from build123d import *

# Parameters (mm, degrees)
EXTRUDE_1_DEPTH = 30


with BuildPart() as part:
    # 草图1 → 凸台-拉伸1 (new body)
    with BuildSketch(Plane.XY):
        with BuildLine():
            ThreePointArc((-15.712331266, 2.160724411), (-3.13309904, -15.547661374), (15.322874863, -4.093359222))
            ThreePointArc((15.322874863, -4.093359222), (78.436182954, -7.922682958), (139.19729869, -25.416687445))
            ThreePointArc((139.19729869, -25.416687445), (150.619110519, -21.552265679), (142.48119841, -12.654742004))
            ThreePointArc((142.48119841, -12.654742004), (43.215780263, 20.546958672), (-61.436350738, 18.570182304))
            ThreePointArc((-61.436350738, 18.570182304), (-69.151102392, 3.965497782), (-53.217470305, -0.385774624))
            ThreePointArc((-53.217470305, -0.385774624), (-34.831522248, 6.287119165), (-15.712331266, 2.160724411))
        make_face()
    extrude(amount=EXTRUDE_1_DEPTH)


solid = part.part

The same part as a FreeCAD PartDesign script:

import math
import FreeCAD as App
import Part
import Sketcher

doc = App.newDocument("Part")
body = doc.addObject("PartDesign::Body", "Body")

# Sketch on XY plane
sketch1 = body.newObject("Sketcher::SketchObject", "Sketch")
sketch1.AttachmentSupport = (doc.getObject("XY_Plane"), [""])
sketch1.MapMode = "FlatFace"
sketch1.addGeometry([
    Part.ArcOfCircle(Part.Circle(App.Vector(0, 0, 0), App.Vector(0, 0, 1), 16), math.radians(172), math.radians(345)),  # 0
    Part.ArcOfCircle(Part.Circle(App.Vector(30, -292, 0), App.Vector(0, 0, 1), 288), math.radians(68), math.radians(93)),  # 1
    Part.ArcOfCircle(Part.Circle(App.Vector(144, -20, 0), App.Vector(0, 0, 1), 7), math.radians(-128), math.radians(99)),  # 2
    Part.ArcOfCircle(Part.Circle(App.Vector(-3, -284, 0), App.Vector(0, 0, 1), 308), math.radians(62), math.radians(101)),  # 3
    Part.ArcOfCircle(Part.Circle(App.Vector(-59, 8, 0), App.Vector(0, 0, 1), 11), math.radians(101), math.radians(306)),  # 4
    Part.ArcOfCircle(Part.Circle(App.Vector(-32, -29, 0), App.Vector(0, 0, 1), 35), math.radians(62), math.radians(126)),  # 5
], False)
sketch1.addConstraint([
    Sketcher.Constraint("Coincident", 0, 2, 1, 2),
    Sketcher.Constraint("Coincident", 1, 1, 2, 1),
    Sketcher.Constraint("Coincident", 2, 2, 3, 1),
    Sketcher.Constraint("Tangent", 3, 2, 4, 1),
    Sketcher.Constraint("Tangent", 4, 2, 5, 2),
    Sketcher.Constraint("Coincident", 5, 1, 0, 1),
    Sketcher.Constraint("Coincident", 0, 3, -1, 1),
    Sketcher.Constraint("Radius", 1, 288.335041),
    Sketcher.Constraint("Radius", 4, 10.584228),
    Sketcher.Constraint("Radius", 5, 35.344162),
    Sketcher.Constraint("Radius", 0, 15.860204),
    Sketcher.Constraint("Radius", 2, 7.198705),
    Sketcher.Constraint("Radius", 3, 307.851514),
    Sketcher.Constraint("DistanceX", -1, 1, 1, 1, 139.197299),
    Sketcher.Constraint("DistanceX", -1, 1, 2, 2, 142.481198),
    Sketcher.Constraint("DistanceY", 2, 3, 4, 3, 27.9342),
    Sketcher.Constraint("DistanceY", 3, 3, 0, 2, 279.6643),
    Sketcher.Constraint("DistanceY", 4, 2, 5, 1, 2.546499),
    Sketcher.Constraint("DistanceY", 1, 3, -1, 1, 292.078542),
    Sketcher.Constraint("DistanceX", 3, 3, -1, 1, 3.380938),
    Sketcher.Constraint("DistanceY", 3, 3, -1, 1, 283.757659),
])
pad1 = body.newObject("PartDesign::Pad", "Pad")
pad1.Profile = sketch1
pad1.Length = 30

doc.recompute()
